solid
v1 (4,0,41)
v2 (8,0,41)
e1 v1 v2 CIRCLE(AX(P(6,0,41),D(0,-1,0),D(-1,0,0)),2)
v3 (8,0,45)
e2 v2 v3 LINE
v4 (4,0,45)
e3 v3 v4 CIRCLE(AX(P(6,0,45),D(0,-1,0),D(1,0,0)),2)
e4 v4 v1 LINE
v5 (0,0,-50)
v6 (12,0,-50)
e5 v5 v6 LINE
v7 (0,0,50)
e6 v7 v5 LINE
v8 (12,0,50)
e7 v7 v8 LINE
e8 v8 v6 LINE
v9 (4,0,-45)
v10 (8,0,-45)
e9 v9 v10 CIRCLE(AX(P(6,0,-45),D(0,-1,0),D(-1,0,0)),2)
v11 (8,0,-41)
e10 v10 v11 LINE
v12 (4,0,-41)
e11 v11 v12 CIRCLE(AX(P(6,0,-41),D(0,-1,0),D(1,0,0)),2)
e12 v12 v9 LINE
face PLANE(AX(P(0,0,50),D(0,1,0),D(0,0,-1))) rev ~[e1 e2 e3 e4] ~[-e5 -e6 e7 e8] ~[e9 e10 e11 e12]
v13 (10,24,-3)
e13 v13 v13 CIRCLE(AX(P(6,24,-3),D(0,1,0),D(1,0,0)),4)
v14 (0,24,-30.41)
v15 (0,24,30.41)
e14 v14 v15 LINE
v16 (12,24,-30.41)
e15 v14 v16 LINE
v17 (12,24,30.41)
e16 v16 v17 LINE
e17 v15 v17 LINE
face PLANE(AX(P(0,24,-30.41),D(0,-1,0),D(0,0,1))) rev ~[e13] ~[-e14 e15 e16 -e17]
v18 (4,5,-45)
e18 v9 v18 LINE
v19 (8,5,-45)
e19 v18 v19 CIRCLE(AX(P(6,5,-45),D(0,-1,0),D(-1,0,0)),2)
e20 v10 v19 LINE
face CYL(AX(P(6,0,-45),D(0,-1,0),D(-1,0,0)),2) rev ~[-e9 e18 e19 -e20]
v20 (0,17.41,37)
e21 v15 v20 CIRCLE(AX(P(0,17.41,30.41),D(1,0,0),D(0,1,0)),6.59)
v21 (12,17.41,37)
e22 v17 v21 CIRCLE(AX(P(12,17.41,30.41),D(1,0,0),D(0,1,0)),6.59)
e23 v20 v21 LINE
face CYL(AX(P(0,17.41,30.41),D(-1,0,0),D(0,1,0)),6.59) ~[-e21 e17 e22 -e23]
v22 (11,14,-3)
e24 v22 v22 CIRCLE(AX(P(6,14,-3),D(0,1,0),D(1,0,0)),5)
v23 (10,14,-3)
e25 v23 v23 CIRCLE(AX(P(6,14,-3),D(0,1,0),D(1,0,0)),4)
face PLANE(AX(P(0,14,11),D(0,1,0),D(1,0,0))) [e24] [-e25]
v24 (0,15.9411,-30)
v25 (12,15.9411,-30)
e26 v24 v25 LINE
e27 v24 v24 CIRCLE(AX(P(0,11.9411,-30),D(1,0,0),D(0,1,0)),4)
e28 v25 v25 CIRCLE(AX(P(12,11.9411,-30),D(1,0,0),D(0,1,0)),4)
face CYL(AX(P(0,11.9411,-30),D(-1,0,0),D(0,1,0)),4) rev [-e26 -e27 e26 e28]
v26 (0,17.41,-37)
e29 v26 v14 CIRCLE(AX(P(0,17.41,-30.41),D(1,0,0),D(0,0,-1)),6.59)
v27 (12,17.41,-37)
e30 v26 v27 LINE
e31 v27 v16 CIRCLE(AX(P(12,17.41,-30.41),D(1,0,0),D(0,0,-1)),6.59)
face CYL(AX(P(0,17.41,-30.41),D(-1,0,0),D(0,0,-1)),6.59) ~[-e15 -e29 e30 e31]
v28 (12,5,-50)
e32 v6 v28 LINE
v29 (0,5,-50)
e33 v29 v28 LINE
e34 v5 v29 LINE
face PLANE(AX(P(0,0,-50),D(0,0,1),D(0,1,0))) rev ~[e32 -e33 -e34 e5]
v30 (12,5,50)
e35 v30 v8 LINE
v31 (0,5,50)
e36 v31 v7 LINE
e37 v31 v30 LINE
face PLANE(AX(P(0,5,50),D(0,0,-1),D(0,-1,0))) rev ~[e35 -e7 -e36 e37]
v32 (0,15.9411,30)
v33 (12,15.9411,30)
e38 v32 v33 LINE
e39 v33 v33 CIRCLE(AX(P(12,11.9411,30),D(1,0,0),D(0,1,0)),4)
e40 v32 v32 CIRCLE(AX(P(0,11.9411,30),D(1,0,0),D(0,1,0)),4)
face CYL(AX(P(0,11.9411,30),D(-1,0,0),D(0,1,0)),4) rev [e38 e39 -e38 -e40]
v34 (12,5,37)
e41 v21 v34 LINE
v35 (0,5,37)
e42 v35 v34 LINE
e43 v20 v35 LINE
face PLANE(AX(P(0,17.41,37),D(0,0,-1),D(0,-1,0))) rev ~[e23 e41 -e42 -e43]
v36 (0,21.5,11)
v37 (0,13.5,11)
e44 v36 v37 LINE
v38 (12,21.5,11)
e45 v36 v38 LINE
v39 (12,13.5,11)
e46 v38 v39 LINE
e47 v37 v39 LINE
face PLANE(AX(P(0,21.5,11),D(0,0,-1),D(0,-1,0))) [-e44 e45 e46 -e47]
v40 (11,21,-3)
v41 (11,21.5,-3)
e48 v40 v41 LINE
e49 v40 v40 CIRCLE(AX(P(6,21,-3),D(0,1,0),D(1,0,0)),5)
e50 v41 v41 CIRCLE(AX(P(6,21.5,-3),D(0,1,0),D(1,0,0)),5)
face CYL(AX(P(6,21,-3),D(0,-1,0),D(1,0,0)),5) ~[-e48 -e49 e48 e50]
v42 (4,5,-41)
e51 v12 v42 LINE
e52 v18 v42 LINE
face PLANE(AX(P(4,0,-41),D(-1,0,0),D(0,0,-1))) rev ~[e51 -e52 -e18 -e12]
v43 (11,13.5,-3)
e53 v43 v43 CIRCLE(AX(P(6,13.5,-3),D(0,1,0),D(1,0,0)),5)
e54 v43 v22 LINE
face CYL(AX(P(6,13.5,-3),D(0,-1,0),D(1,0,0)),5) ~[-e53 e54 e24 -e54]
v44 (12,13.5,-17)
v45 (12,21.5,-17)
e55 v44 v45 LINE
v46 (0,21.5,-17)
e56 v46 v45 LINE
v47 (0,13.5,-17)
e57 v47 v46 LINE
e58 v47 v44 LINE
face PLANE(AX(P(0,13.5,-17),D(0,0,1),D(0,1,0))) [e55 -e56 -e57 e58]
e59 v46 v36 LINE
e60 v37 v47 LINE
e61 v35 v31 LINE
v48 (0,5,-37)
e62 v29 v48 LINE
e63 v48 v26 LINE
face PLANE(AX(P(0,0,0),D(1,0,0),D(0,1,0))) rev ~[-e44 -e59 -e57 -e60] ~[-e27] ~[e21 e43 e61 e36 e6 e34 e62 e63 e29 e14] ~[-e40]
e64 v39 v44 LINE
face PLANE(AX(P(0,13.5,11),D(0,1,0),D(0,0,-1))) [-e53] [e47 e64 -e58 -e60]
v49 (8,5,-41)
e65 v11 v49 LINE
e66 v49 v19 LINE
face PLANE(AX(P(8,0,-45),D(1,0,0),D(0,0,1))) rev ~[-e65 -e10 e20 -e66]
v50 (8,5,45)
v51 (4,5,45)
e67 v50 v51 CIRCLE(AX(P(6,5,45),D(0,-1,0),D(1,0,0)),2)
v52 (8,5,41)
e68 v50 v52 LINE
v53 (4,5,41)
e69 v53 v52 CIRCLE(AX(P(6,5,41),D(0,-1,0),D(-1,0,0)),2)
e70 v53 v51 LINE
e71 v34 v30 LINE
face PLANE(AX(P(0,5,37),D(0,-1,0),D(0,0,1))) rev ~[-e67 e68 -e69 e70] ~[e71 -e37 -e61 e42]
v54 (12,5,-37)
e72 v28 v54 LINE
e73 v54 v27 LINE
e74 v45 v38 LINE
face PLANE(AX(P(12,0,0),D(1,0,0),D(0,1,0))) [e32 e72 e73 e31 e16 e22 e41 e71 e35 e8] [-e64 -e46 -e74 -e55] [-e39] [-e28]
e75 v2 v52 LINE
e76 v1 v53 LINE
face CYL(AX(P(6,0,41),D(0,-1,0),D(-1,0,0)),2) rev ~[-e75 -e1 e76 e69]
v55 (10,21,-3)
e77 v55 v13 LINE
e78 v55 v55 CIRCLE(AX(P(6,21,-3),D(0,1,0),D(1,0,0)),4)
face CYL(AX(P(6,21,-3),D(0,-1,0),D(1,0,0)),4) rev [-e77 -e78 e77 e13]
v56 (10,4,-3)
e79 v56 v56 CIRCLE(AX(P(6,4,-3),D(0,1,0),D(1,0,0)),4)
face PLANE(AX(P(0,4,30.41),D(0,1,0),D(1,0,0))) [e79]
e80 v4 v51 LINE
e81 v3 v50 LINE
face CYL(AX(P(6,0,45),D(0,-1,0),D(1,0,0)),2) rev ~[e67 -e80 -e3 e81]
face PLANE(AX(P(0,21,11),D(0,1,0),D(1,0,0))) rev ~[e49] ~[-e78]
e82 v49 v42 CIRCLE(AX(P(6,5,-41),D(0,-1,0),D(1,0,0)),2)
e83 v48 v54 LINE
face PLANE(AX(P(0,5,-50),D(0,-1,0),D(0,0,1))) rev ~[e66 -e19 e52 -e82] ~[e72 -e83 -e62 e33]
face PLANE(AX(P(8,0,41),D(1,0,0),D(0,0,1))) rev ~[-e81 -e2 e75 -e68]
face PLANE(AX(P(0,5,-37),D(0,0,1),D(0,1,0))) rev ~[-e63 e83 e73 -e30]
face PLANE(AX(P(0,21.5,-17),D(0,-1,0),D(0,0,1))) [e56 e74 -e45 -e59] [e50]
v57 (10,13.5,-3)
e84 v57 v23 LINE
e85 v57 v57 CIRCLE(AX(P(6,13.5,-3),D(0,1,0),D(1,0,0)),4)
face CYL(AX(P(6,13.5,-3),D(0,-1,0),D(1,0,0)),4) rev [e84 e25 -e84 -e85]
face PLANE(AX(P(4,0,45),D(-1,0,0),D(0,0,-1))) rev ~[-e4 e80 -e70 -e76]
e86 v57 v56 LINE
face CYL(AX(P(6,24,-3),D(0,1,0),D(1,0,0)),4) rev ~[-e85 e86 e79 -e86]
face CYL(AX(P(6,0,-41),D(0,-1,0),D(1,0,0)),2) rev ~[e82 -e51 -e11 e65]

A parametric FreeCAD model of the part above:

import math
import FreeCAD as App
import Part
import Sketcher

V = App.Vector


def add_polygon(sketch, points):
    """Adds a closed chain of lines whose ends are joined by coincident constraints."""
    first, n = sketch.GeometryCount, len(points)
    for a, b in zip(points, points[1:] + points[:1]):
        sketch.addGeometry(Part.LineSegment(App.Vector(*a, 0), App.Vector(*b, 0)), False)
    for i in range(n):
        sketch.addConstraint(Sketcher.Constraint("Coincident", first + i, 2, first + (i + 1) % n, 1))

doc = App.newDocument("Part")
body = doc.addObject("PartDesign::Body", "Body")

sketch1 = doc.addObject("Sketcher::SketchObject", "Sketch")
body.addObject(sketch1)
sketch1.AttachmentSupport = (doc.YZ_Plane, [""])
sketch1.MapMode = "FlatFace"
sketch1.addGeometry(Part.LineSegment(V(5, 50, 0), V(0, 50, 0)), False)
sketch1.addGeometry(Part.LineSegment(V(0, 50, 0), V(0, -50, 0)), False)
sketch1.addGeometry(Part.LineSegment(V(0, -50, 0), V(5, -50, 0)), False)
sketch1.addGeometry(Part.LineSegment(V(5, -50, 0), V(5, -37, 0)), False)
sketch1.addGeometry(Part.LineSegment(V(5, -37, 0), V(17.4, -37, 0)), False)
sketch1.addGeometry(Part.ArcOfCircle(Part.Circle(V(17.4, -30.4, 0), V(0, 0, 1), 6.6), math.radians(-90), math.radians(0)), False)
sketch1.addGeometry(Part.LineSegment(V(24, -30.4, 0), V(24, 30.4, 0)), False)
sketch1.addGeometry(Part.ArcOfCircle(Part.Circle(V(17.4, 30.4, 0), V(0, 0, 1), 6.6), math.radians(0), math.radians(90)), False)
sketch1.addGeometry(Part.LineSegment(V(17.4, 37, 0), V(5, 37, 0)), False)
sketch1.addGeometry(Part.LineSegment(V(5, 37, 0), V(5, 50, 0)), False)
sketch1.addGeometry(Part.Circle(V(11.9, -30, 0), V(0, 0, 1), 4), False)
add_polygon(sketch1, [(13.5, 11), (21.5, 11), (21.5, -17), (13.5, -17)])
sketch1.addGeometry(Part.Circle(V(11.9, 30, 0), V(0, 0, 1), 4), False)
sketch1.addConstraint([
    Sketcher.Constraint("Coincident", 0, 2, 1, 1),
    Sketcher.Constraint("Coincident", 1, 2, 2, 1),
    Sketcher.Constraint("Coincident", 2, 2, 3, 1),
    Sketcher.Constraint("Coincident", 3, 2, 4, 1),
    Sketcher.Constraint("Tangent", 4, 2, 5, 1),
    Sketcher.Constraint("Tangent", 5, 2, 6, 1),
    Sketcher.Constraint("Tangent", 6, 2, 7, 1),
    Sketcher.Constraint("Tangent", 7, 2, 8, 1),
    Sketcher.Constraint("Coincident", 8, 2, 9, 1),
    Sketcher.Constraint("Coincident", 9, 2, 0, 1),
    Sketcher.Constraint("Horizontal", 0),
    Sketcher.Constraint("Vertical", 1),
    Sketcher.Constraint("Horizontal", 2),
    Sketcher.Constraint("Vertical", 3),
    Sketcher.Constraint("Horizontal", 4),
    Sketcher.Constraint("Vertical", 6),
    Sketcher.Constraint("Horizontal", 8),
    Sketcher.Constraint("Vertical", 9),
    Sketcher.Constraint("Horizontal", 11),
    Sketcher.Constraint("Vertical", 12),
    Sketcher.Constraint("Horizontal", 13),
    Sketcher.Constraint("Vertical", 14),
    Sketcher.Constraint("Equal", 5, 7),
    Sketcher.Constraint("Equal", 10, 15),
    Sketcher.Constraint("Symmetric", 0, 2, 1, 2, -1, 1),
    Sketcher.Constraint("Symmetric", 10, 3, 15, 3, -1),
    Sketcher.Constraint("Symmetric", 3, 2, 8, 2, -1),
    Sketcher.Constraint("Diameter", 10, 8.0),
    Sketcher.Constraint("DistanceX", 0, 2, 0, 1, 5.0),
    Sketcher.Constraint("DistanceX", 11, 1, 11, 2, 8.0),
    Sketcher.Constraint("DistanceY", 1, 2, 1, 1, 100.0),
    Sketcher.Constraint("DistanceY", 3, 1, 3, 2, 13.0),
    Sketcher.Constraint("DistanceY", 12, 2, 12, 1, 28.0),
    Sketcher.Constraint("Radius", 5, 6.59),
    Sketcher.Constraint("DistanceY", 10, 3, -1, 1, 30.0),
    Sketcher.Constraint("DistanceX", 3, 2, 5, 2, 19.0),
    Sketcher.Constraint("DistanceY", 11, 2, 15, 3, 19.0),
    Sketcher.Constraint("DistanceX", 11, 2, 6, 2, 2.5),
    Sketcher.Constraint("DistanceX", -1, 1, 10, 3, 11.941),
])
pad1 = doc.addObject("PartDesign::Pad", "Pad")
body.addObject(pad1)
pad1.Profile = sketch1
pad1.Length = 12

sketch2 = doc.addObject("Sketcher::SketchObject", "Sketch001")
body.addObject(sketch2)
sketch2.AttachmentSupport = (doc.XZ_Plane, [""])
sketch2.MapMode = "FlatFace"
sketch2.AttachmentOffset = App.Placement(V(0, 0, -24), App.Rotation())
sketch2.addGeometry(Part.Circle(V(6, -3, 0), V(0, 0, 1), 4), False)
sketch2.addConstraint([
    Sketcher.Constraint("Diameter", 0, 8.0),
    Sketcher.Constraint("DistanceX", -1, 1, 0, 3, 6.0),
    Sketcher.Constraint("DistanceY", 0, 3, -1, 1, 3.0),
])
pocket1 = doc.addObject("PartDesign::Pocket", "Pocket")
body.addObject(pocket1)
pocket1.Profile = sketch2
pocket1.Length = 20
pocket1.Reversed = True

sketch3 = doc.addObject("Sketcher::SketchObject", "Sketch002")
body.addObject(sketch3)
sketch3.AttachmentSupport = (doc.XZ_Plane, [""])
sketch3.MapMode = "FlatFace"
sketch3.addGeometry([
    Part.ArcOfCircle(Part.Circle(V(6, 45, 0), V(0, 0, 1), 2), math.radians(0), math.radians(180)),
    Part.LineSegment(V(4, 45, 0), V(4, 41, 0)),
    Part.ArcOfCircle(Part.Circle(V(6, 41, 0), V(0, 0, 1), 2), math.radians(180), math.radians(360)),
    Part.LineSegment(V(8, 41, 0), V(8, 45, 0)),
    Part.ArcOfCircle(Part.Circle(V(6, -41, 0), V(0, 0, 1), 2), math.radians(0), math.radians(180)),
    Part.LineSegment(V(4, -41, 0), V(4, -45, 0)),
    Part.ArcOfCircle(Part.Circle(V(6, -45, 0), V(0, 0, 1), 2), math.radians(180), math.radians(360)),
    Part.LineSegment(V(8, -45, 0), V(8, -41, 0)),
], False)
sketch3.addConstraint([
    Sketcher.Constraint("Tangent", 0, 2, 1, 1),
    Sketcher.Constraint("Tangent", 1, 2, 2, 1),
    Sketcher.Constraint("Tangent", 2, 2, 3, 1),
    Sketcher.Constraint("Tangent", 3, 2, 0, 1),
    Sketcher.Constraint("Tangent", 4, 2, 5, 1),
    Sketcher.Constraint("Tangent", 5, 2, 6, 1),
    Sketcher.Constraint("Tangent", 6, 2, 7, 1),
    Sketcher.Constraint("Tangent", 7, 2, 4, 1),
    Sketcher.Constraint("Vertical", 1),
    Sketcher.Constraint("Vertical", 3),
    Sketcher.Constraint("Vertical", 5),
    Sketcher.Constraint("Vertical", 7),
    Sketcher.Constraint("Equal", 2, 4),
    Sketcher.Constraint("Symmetric", 2, 3, 4, 3, -1),
    Sketcher.Constraint("Equal", 3, 5),
    Sketcher.Constraint("Radius", 0, 2.0),
    Sketcher.Constraint("DistanceY", 1, 2, 1, 1, 4.0),
    Sketcher.Constraint("DistanceX", -1, 1, 0, 3, 6.0),
    Sketcher.Constraint("DistanceY", -1, 1, 0, 3, 45.0),
])
pocket2 = doc.addObject("PartDesign::Pocket", "Pocket001")
body.addObject(pocket2)
pocket2.Profile = sketch3
pocket2.Length = 5

sketch4 = doc.addObject("Sketcher::SketchObject", "Sketch003")
body.addObject(sketch4)
sketch4.AttachmentSupport = (doc.XZ_Plane, [""])
sketch4.MapMode = "FlatFace"
sketch4.AttachmentOffset = App.Placement(V(0, 0, -13.5), App.Rotation())
sketch4.addGeometry([
    Part.Circle(V(6, -3, 0), V(0, 0, 1), 5),
    Part.Circle(V(6, -3, 0), V(0, 0, 1), 4),
], False)
sketch4.addConstraint([
    Sketcher.Constraint("Coincident", 1, 3, 0, 3),
    Sketcher.Constraint("Diameter", 0, 10.0),
    Sketcher.Constraint("Diameter", 1, 8.0),
    Sketcher.Constraint("DistanceX", -1, 1, 0, 3, 6.0),
    Sketcher.Constraint("DistanceY", 0, 3, -1, 1, 3.0),
])
pad2 = doc.addObject("PartDesign::Pad", "Pad001")
body.addObject(pad2)
pad2.Profile = sketch4
pad2.Length = 0.5
pad2.Reversed = True
doc.recompute()

linearpattern = doc.addObject("PartDesign::LinearPattern", "LinearPattern")
body.addObject(linearpattern)
linearpattern.Originals = [pad2]
linearpattern.Direction = (doc.Y_Axis, [""])
linearpattern.Mode = "offset"
linearpattern.Offset = 7.5
linearpattern.Occurrences = 2
body.Tip = linearpattern

doc.recompute()
